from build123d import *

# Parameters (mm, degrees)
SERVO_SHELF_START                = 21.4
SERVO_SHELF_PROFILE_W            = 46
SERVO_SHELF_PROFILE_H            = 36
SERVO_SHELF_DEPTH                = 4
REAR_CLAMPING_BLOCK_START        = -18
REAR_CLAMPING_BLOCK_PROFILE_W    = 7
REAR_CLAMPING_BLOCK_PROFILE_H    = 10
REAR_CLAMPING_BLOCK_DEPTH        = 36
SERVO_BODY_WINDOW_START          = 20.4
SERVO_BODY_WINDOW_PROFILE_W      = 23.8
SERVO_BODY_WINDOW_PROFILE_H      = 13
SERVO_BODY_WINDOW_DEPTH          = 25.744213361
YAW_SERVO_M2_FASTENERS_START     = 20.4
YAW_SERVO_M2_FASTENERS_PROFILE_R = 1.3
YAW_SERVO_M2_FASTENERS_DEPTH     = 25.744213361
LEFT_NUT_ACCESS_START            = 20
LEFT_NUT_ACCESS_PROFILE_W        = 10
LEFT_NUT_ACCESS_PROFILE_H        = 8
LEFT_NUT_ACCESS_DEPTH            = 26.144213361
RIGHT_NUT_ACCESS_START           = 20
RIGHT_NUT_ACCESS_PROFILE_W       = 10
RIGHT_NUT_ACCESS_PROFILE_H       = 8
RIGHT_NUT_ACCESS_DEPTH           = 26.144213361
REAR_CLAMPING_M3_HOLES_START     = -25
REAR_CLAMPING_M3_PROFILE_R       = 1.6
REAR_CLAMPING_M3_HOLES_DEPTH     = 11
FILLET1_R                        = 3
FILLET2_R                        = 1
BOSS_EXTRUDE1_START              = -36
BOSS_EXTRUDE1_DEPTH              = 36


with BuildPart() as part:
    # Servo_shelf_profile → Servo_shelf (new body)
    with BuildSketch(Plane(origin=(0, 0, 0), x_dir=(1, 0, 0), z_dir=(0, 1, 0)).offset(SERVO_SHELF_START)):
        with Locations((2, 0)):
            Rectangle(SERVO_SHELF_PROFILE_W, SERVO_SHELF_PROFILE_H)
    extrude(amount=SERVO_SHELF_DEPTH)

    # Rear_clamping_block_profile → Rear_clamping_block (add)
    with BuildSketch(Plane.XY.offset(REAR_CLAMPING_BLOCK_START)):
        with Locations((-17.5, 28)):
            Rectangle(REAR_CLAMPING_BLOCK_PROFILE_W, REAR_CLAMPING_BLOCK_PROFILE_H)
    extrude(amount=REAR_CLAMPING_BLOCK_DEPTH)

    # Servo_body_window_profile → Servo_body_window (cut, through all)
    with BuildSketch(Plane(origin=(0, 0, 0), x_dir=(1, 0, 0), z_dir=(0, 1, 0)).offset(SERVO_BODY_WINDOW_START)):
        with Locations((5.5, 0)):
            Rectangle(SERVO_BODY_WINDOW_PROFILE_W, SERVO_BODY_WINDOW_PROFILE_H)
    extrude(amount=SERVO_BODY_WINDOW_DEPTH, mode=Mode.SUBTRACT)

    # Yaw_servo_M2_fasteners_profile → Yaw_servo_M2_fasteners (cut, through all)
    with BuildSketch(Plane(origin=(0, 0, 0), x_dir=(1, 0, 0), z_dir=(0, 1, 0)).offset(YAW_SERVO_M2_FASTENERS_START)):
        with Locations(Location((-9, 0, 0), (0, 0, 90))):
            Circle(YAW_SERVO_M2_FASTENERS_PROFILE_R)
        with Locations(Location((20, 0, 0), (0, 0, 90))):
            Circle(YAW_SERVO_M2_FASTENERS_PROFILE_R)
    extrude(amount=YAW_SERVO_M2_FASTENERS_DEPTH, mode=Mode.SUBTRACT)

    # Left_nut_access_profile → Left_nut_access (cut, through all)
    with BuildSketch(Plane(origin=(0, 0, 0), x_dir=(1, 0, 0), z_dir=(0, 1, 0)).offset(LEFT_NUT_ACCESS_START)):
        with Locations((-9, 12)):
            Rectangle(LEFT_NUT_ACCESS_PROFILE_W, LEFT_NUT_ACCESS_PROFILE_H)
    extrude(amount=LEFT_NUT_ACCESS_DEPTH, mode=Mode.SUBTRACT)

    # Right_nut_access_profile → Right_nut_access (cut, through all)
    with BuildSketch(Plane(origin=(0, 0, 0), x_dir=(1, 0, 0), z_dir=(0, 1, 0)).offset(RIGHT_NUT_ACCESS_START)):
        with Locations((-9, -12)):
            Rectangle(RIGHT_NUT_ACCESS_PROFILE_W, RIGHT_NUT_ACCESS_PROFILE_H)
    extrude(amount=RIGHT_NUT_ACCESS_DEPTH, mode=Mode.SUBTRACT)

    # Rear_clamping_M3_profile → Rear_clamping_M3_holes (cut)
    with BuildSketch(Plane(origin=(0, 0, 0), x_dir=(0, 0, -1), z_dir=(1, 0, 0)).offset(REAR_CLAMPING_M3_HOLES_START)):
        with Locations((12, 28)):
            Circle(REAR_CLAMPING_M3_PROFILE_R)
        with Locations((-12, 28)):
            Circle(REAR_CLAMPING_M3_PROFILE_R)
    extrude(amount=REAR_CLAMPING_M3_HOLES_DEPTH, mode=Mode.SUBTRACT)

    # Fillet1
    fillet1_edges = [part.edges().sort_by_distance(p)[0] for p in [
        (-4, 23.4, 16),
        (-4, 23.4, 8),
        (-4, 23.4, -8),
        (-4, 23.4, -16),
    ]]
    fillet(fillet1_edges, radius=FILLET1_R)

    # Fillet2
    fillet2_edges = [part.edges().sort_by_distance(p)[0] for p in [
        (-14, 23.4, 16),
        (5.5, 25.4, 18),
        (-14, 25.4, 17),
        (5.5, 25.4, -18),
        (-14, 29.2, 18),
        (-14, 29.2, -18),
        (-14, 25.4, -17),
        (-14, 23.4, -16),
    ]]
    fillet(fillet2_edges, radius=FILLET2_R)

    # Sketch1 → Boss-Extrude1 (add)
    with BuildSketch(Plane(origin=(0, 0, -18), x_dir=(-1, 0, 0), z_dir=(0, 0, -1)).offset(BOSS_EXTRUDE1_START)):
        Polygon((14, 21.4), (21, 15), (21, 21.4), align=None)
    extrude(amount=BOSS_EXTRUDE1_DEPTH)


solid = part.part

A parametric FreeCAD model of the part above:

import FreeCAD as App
import Part
import Sketcher


def edges_at(feature, points):
    """Names of the edges that pass closest to the given points."""
    edges = feature.Shape.Edges
    near = lambda p: min(range(len(edges)), key=lambda i: edges[i].distToShape(Part.Vertex(*p))[0])
    return sorted({f"Edge{near(p) + 1}" for p in points})


def add_polygon(sketch, points):
    """Adds a closed chain of lines whose ends are joined by coincident constraints."""
    first, n = sketch.GeometryCount, len(points)
    for a, b in zip(points, points[1:] + points[:1]):
        sketch.addGeometry(Part.LineSegment(App.Vector(*a, 0), App.Vector(*b, 0)), False)
    for i in range(n):
        sketch.addConstraint(Sketcher.Constraint("Coincident", first + i, 2, first + (i + 1) % n, 1))

doc = App.newDocument("Part")
body = doc.addObject("PartDesign::Body", "Body")

# Sketch on XZ plane
sketch1 = body.newObject("Sketcher::SketchObject", "Sketch")
sketch1.AttachmentSupport = (doc.getObject("XZ_Plane"), [""])
sketch1.MapMode = "FlatFace"
sketch1.AttachmentOffset = App.Placement(App.Vector(0, 0, -21.4), App.Rotation())
add_polygon(sketch1, [(-21, -18), (-21, 18), (25, 18), (25, -18)])  # lines 0-3
sketch1.addConstraint([
    Sketcher.Constraint("Vertical", 0),
    Sketcher.Constraint("Horizontal", 1),
    Sketcher.Constraint("Vertical", 2),
    Sketcher.Constraint("Horizontal", 3),
    Sketcher.Constraint("DistanceX", 1, 1, 1, 2, 46.0),
    Sketcher.Constraint("DistanceY", 0, 1, 0, 2, 36.0),
    Sketcher.Constraint("DistanceX", 0, 2, -1, 1, 21.0),
    Sketcher.Constraint("DistanceY", -1, 1, 0, 2, 18.0),
])
pad1 = body.newObject("PartDesign::Pad", "Pad")
pad1.Profile = sketch1
pad1.Length = 4
pad1.Reversed = True

# Sketch on XY plane
sketch2 = body.newObject("Sketcher::SketchObject", "Sketch001")
sketch2.AttachmentSupport = (doc.getObject("XY_Plane"), [""])
sketch2.MapMode = "FlatFace"
sketch2.AttachmentOffset = App.Placement(App.Vector(0, 0, -18), App.Rotation())
add_polygon(sketch2, [(-21, 33), (-21, 23), (-14, 23), (-14, 33)])  # lines 0-3
sketch2.addConstraint([
    Sketcher.Constraint("Vertical", 0),
    Sketcher.Constraint("Horizontal", 1),
    Sketcher.Constraint("Vertical", 2),
    Sketcher.Constraint("Horizontal", 3),
    Sketcher.Constraint("DistanceX", 1, 1, 1, 2, 7.0),
    Sketcher.Constraint("DistanceY", 0, 2, 0, 1, 10.0),
    Sketcher.Constraint("DistanceX", 0, 2, -1, 1, 21.0),
    Sketcher.Constraint("DistanceY", -1, 1, 0, 2, 23.0),
])
pad2 = body.newObject("PartDesign::Pad", "Pad001")
pad2.Profile = sketch2
pad2.Length = 36

# Sketch on XZ plane
sketch3 = body.newObject("Sketcher::SketchObject", "Sketch002")
sketch3.AttachmentSupport = (doc.getObject("XZ_Plane"), [""])
sketch3.MapMode = "FlatFace"
sketch3.AttachmentOffset = App.Placement(App.Vector(0, 0, -20.4), App.Rotation())
add_polygon(sketch3, [(-6, -6), (-6, 6), (17, 6), (17, -6)])  # lines 0-3
sketch3.addConstraint([
    Sketcher.Constraint("Vertical", 0),
    Sketcher.Constraint("Horizontal", 1),
    Sketcher.Constraint("Vertical", 2),
    Sketcher.Constraint("Horizontal", 3),
    Sketcher.Constraint("DistanceY", 0, 1, 0, 2, 13.0),
    Sketcher.Constraint("DistanceX", 1, 1, 1, 2, 23.8),
    Sketcher.Constraint("DistanceX", 0, 2, -1, 1, 6.4),
    Sketcher.Constraint("DistanceY", -1, 1, 0, 2, 6.5),
])
pocket1 = body.newObject("PartDesign::Pocket", "Pocket")
pocket1.Profile = sketch3
pocket1.Type = "ThroughAll"

# Sketch on XZ plane
sketch4 = body.newObject("Sketcher::SketchObject", "Sketch003")
sketch4.AttachmentSupport = (doc.getObject("XZ_Plane"), [""])
sketch4.MapMode = "FlatFace"
sketch4.AttachmentOffset = App.Placement(App.Vector(0, 0, -20.4), App.Rotation())
sketch4.addGeometry([
    Part.Circle(App.Vector(-9, 0, 0), App.Vector(0, 0, 1), 1.3),
    Part.Circle(App.Vector(20, 0, 0), App.Vector(0, 0, 1), 1.3),
], False)
sketch4.addConstraint([
    Sketcher.Constraint("Equal", 0, 1),
    Sketcher.Constraint("PointOnObject", 0, 3, -1),
    Sketcher.Constraint("PointOnObject", 1, 3, -1),
    Sketcher.Constraint("Diameter", 0, 2.6),
    Sketcher.Constraint("DistanceX", 0, 3, -1, 1, 9.0),
    Sketcher.Constraint("DistanceX", -1, 1, 1, 3, 20.0),
])
pocket2 = body.newObject("PartDesign::Pocket", "Pocket001")
pocket2.Profile = sketch4
pocket2.Type = "ThroughAll"

# Sketch on XZ plane
sketch5 = body.newObject("Sketcher::SketchObject", "Sketch004")
sketch5.AttachmentSupport = (doc.getObject("XZ_Plane"), [""])
sketch5.MapMode = "FlatFace"
sketch5.AttachmentOffset = App.Placement(App.Vector(0, 0, -20), App.Rotation())
add_polygon(sketch5, [(-14, -16), (-14, -8), (-4, -8), (-4, -16)])  # lines 0-3
sketch5.addConstraint([
    Sketcher.Constraint("Vertical", 0),
    Sketcher.Constraint("Horizontal", 1),
    Sketcher.Constraint("Vertical", 2),
    Sketcher.Constraint("Horizontal", 3),
    Sketcher.Constraint("DistanceX", 1, 1, 1, 2, 10.0),
    Sketcher.Constraint("DistanceY", 0, 1, 0, 2, 8.0),
    Sketcher.Constraint("DistanceX", 0, 2, -1, 1, 14.0),
    Sketcher.Constraint("DistanceY", 0, 2, -1, 1, 8.0),
])
pocket3 = body.newObject("PartDesign::Pocket", "Pocket002")
pocket3.Profile = sketch5
pocket3.Type = "ThroughAll"

# Sketch on XZ plane
sketch6 = body.newObject("Sketcher::SketchObject", "Sketch005")
sketch6.AttachmentSupport = (doc.getObject("XZ_Plane"), [""])
sketch6.MapMode = "FlatFace"
sketch6.AttachmentOffset = App.Placement(App.Vector(0, 0, -20), App.Rotation())
add_polygon(sketch6, [(-14, 8), (-14, 16), (-4, 16), (-4, 8)])  # lines 0-3
sketch6.addConstraint([
    Sketcher.Constraint("Vertical", 0),
    Sketcher.Constraint("Horizontal", 1),
    Sketcher.Constraint("Vertical", 2),
    Sketcher.Constraint("Horizontal", 3),
    Sketcher.Constraint("DistanceX", 1, 1, 1, 2, 10.0),
    Sketcher.Constraint("DistanceY", 0, 1, 0, 2, 8.0),
    Sketcher.Constraint("DistanceX", 0, 2, -1, 1, 14.0),
    Sketcher.Constraint("DistanceY", -1, 1, 0, 2, 16.0),
])
pocket4 = body.newObject("PartDesign::Pocket", "Pocket003")
pocket4.Profile = sketch6
pocket4.Type = "ThroughAll"

# Sketch on YZ plane
sketch7 = body.newObject("Sketcher::SketchObject", "Sketch006")
sketch7.AttachmentSupport = (doc.getObject("YZ_Plane"), [""])
sketch7.MapMode = "FlatFace"
sketch7.AttachmentOffset = App.Placement(App.Vector(0, 0, -25), App.Rotation())
sketch7.addGeometry([
    Part.Circle(App.Vector(28, -12, 0), App.Vector(0, 0, 1), 1.6),
    Part.Circle(App.Vector(28, 12, 0), App.Vector(0, 0, 1), 1.6),
], False)
sketch7.addConstraint([
    Sketcher.Constraint("Equal", 0, 1),
    Sketcher.Constraint("Symmetric", 0, 3, 1, 3, -1),
    Sketcher.Constraint("Diameter", 0, 3.2),
    Sketcher.Constraint("DistanceX", -1, 1, 0, 3, 28.0),
    Sketcher.Constraint("DistanceY", 0, 3, -1, 1, 12.0),
])
pocket5 = body.newObject("PartDesign::Pocket", "Pocket004")
pocket5.Profile = sketch7
pocket5.Length = 11
pocket5.Reversed = True
doc.recompute()

fillet = body.newObject("PartDesign::Fillet", "Fillet")
fillet.Base = (pocket5, edges_at(pocket5, [
    (-4, 23.4, 16),
    (-4, 23.4, 8),
    (-4, 23.4, -8),
    (-4, 23.4, -16),
]))
fillet.Radius = 3
doc.recompute()

fillet2 = body.newObject("PartDesign::Fillet", "Fillet001")
fillet2.Base = (fillet, edges_at(fillet, [
    (-14, 23.4, 16),
    (5.5, 25.4, 18),
    (-14, 25.4, 17),
    (5.5, 25.4, -18),
    (-14, 29.2, 18),
    (-14, 29.2, -18),
    (-14, 25.4, -17),
    (-14, 23.4, -16),
]))
fillet2.Radius = 1

# Sketch on XY plane
sketch8 = body.newObject("Sketcher::SketchObject", "Sketch007")
sketch8.AttachmentSupport = (doc.getObject("XY_Plane"), [""])
sketch8.MapMode = "FlatFace"
sketch8.AttachmentOffset = App.Placement(App.Vector(0, 0, 18), App.Rotation())
add_polygon(sketch8, [(-14, 21), (-21, 15), (-21, 21)])  # lines 0-2
sketch8.addConstraint([
    Sketcher.Constraint("Vertical", 1),
    Sketcher.Constraint("Horizontal", 2),
    Sketcher.Constraint("DistanceX", 2, 1, 2, 2, 7.0),
    Sketcher.Constraint("DistanceY", 1, 1, 1, 2, 6.4),
    Sketcher.Constraint("DistanceX", 0, 2, -1, 1, 21.0),
    Sketcher.Constraint("DistanceY", -1, 1, 0, 2, 15.0),
])
pad3 = body.newObject("PartDesign::Pad", "Pad002")
pad3.Profile = sketch8
pad3.Length = 36
pad3.Reversed = True

doc.recompute()
